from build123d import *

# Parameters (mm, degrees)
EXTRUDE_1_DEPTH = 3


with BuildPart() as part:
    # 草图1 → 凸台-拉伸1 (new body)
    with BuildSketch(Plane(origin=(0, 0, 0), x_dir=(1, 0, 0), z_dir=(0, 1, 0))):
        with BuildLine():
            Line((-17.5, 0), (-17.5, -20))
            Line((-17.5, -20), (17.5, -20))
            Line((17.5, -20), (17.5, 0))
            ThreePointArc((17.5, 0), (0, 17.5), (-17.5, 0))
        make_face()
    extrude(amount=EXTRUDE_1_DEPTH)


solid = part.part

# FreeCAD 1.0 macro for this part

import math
import FreeCAD as App
import Part
import Sketcher
Q = App.Units.Quantity

doc = App.newDocument("Part")
params = doc.addObject("Spreadsheet::Sheet", "Params")
for row, (alias, value) in enumerate([
    ("sketch1_radius", "17.5 mm"),
    ("sketch1_height", "20 mm"),
    ("pad1_length", "3 mm"),
], start=1):
    params.set(f"A{row}", alias)
    params.set(f"B{row}", "=" + value)
    params.setAlias(f"B{row}", alias)

body = doc.addObject("PartDesign::Body", "Body")

# Sketch on XZ plane
sketch1 = body.newObject("Sketcher::SketchObject", "Sketch")
sketch1.AttachmentSupport = (doc.getObject("XZ_Plane"), [""])
sketch1.MapMode = "FlatFace"
sketch1.addGeometry([
    Part.LineSegment(App.Vector(-18, 0, 0), App.Vector(-18, 20, 0)),
    Part.LineSegment(App.Vector(-18, 20, 0), App.Vector(18, 20, 0)),
    Part.LineSegment(App.Vector(18, 20, 0), App.Vector(18, 0, 0)),
    Part.ArcOfCircle(Part.Circle(App.Vector(0, 0, 0), App.Vector(0, 0, 1), 18), math.radians(180), math.radians(360)),
], False)
sketch1.addConstraint([
    Sketcher.Constraint("Coincident", 0, 2, 1, 1),
    Sketcher.Constraint("Coincident", 1, 2, 2, 1),
    Sketcher.Constraint("Tangent", 2, 2, 3, 2),
    Sketcher.Constraint("Tangent", 3, 1, 0, 1),
    Sketcher.Constraint("Vertical", 0),
    Sketcher.Constraint("Horizontal", 1),
    Sketcher.Constraint("Vertical", 2),
    Sketcher.Constraint("Coincident", 3, 3, -1, 1),
    Sketcher.Constraint("Radius", 3, Q("17.5 mm")),
    Sketcher.Constraint("DistanceY", 0, 1, 0, 2, Q("20 mm")),
])
sketch1.setExpression("Constraints[8]", "Params.sketch1_radius")
sketch1.setExpression("Constraints[9]", "Params.sketch1_height")
pad1 = body.newObject("PartDesign::Pad", "Pad")
pad1.Profile = sketch1
pad1.setExpression("Length", "Params.pad1_length")
pad1.Reversed = True

doc.recompute()
